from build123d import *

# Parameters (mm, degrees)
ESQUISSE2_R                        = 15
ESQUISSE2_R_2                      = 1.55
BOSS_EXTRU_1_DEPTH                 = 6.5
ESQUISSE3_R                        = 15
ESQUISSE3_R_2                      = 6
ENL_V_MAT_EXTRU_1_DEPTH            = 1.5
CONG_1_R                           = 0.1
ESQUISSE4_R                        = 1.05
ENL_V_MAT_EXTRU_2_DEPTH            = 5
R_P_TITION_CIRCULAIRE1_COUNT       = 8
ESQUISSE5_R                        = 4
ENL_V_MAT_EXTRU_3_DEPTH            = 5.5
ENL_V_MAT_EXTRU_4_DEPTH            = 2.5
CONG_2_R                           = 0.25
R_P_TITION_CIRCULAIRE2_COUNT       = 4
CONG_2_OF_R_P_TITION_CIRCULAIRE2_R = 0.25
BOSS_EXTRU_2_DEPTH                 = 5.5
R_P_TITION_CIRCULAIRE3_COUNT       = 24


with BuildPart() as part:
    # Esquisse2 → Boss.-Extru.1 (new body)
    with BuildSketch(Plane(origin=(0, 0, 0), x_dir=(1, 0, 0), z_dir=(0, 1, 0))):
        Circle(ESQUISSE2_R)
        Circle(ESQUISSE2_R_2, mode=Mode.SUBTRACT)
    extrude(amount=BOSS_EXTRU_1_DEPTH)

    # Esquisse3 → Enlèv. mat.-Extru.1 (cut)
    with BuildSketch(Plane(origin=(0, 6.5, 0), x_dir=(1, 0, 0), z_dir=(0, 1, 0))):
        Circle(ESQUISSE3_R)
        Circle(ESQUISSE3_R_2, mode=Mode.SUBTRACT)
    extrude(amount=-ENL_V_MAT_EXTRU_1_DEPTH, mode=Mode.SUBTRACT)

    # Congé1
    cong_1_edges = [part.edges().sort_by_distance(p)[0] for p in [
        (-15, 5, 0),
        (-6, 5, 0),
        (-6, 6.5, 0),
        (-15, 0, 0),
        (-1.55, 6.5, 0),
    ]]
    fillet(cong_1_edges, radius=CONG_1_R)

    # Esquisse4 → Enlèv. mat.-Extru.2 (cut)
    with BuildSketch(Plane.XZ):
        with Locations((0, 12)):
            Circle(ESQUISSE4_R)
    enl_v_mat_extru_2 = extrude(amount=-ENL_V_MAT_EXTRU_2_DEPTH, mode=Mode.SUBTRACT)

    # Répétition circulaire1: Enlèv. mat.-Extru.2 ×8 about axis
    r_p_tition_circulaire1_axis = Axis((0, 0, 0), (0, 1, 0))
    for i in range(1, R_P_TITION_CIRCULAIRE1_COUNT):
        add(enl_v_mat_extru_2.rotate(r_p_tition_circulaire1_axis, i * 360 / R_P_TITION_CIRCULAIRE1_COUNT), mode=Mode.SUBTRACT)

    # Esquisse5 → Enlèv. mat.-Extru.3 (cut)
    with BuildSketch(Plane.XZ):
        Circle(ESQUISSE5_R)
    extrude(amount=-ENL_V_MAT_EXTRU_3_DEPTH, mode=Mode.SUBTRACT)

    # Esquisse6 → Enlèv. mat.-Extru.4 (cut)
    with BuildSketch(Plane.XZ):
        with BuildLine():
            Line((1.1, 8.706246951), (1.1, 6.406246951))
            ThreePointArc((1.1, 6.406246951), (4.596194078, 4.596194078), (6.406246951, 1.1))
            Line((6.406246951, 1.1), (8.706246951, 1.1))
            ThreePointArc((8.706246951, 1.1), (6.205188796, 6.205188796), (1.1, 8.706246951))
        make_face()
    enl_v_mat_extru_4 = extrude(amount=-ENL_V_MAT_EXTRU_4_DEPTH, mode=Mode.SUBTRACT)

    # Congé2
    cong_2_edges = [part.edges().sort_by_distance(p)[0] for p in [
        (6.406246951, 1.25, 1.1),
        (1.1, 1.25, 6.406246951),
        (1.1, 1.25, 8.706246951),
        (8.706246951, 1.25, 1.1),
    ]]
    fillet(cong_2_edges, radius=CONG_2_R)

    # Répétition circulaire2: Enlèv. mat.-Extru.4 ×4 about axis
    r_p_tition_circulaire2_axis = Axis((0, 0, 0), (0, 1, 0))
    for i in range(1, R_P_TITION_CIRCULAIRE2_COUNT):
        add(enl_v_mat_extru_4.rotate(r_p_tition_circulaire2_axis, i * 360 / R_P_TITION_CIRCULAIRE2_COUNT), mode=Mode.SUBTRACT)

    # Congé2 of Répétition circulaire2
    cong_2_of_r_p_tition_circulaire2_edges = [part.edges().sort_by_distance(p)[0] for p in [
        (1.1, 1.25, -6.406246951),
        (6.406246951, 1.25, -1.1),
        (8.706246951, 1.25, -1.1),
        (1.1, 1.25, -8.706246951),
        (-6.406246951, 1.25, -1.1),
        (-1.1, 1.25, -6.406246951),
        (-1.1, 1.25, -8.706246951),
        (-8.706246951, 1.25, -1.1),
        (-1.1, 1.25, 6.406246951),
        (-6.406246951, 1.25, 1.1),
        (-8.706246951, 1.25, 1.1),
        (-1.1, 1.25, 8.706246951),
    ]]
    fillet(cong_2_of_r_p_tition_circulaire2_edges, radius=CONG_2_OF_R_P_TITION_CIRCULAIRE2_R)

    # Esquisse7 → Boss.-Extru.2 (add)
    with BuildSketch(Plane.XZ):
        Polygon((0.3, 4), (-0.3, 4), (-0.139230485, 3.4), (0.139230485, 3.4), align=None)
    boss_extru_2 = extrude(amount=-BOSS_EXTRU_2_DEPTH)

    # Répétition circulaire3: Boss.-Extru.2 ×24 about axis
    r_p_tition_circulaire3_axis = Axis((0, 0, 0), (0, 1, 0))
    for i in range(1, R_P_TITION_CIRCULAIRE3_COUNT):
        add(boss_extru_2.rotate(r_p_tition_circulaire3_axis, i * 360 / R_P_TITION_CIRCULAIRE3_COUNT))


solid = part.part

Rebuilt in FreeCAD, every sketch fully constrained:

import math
import FreeCAD as App
import Part
import Sketcher
from FreeCAD import Vector
Q = App.Units.Quantity


def edges_at(feature, points):
    """Names of the edges that pass closest to the given points."""
    edges = feature.Shape.Edges
    near = lambda p: min(range(len(edges)), key=lambda i: edges[i].distToShape(Part.Vertex(*p))[0])
    return sorted({f"Edge{near(p) + 1}" for p in points})


def add_polygon(sketch, points):
    """Adds a closed chain of lines whose ends are joined by coincident constraints."""
    first, n = sketch.GeometryCount, len(points)
    for a, b in zip(points, points[1:] + points[:1]):
        sketch.addGeometry(Part.LineSegment(App.Vector(*a, 0), App.Vector(*b, 0)), False)
    for i in range(n):
        sketch.addConstraint(Sketcher.Constraint("Coincident", first + i, 2, first + (i + 1) % n, 1))

doc = App.newDocument("Part")
params = doc.addObject("Spreadsheet::Sheet", "Params")
for row, (alias, value) in enumerate([
    ("sketch1_diameter", "30 mm"),
    ("sketch1_diameter2", "3.1 mm"),
    ("pad1_length", "6.5 mm"),
    ("sketch2_diameter", "30 mm"),
    ("sketch2_diameter2", "12 mm"),
    ("pocket1_length", "1.5 mm"),
    ("fillet_radius", "0.1 mm"),
    ("sketch3_diameter", "2.1 mm"),
    ("pocket2_length", "5 mm"),
    ("sketch4_diameter", "8 mm"),
    ("pocket3_length", "5.5 mm"),
    ("sketch5_radius", "6.5 mm"),
    ("sketch5_width", "2.3 mm"),
    ("pocket4_length", "2.5 mm"),
    ("fillet2_radius", "0.25 mm"),
    ("fillet3_radius", "0.25 mm"),
    ("sketch6_width", "0.6 mm"),
    ("pad2_length", "5.5 mm"),
], start=1):
    params.set(f"A{row}", alias)
    params.set(f"B{row}", "=" + value)
    params.setAlias(f"B{row}", alias)

body = doc.addObject("PartDesign::Body", "Body")

sketch1 = body.newObject("Sketcher::SketchObject", "Sketch")
sketch1.AttachmentSupport = (doc.getObject("XZ_Plane"), [""])
sketch1.MapMode = "FlatFace"
sketch1.addGeometry([
    Part.Circle(Vector(0, 0, 0), Vector(0, 0, 1), 15),
    Part.Circle(Vector(0, 0, 0), Vector(0, 0, 1), 1.55),
], False)
sketch1.addConstraint([
    Sketcher.Constraint("Coincident", 0, 3, -1, 1),
    Sketcher.Constraint("Coincident", 1, 3, -1, 1),
    Sketcher.Constraint("Diameter", 0, 30.0),
    Sketcher.Constraint("Diameter", 1, 3.1),
])
sketch1.setExpression("Constraints[2]", "Params.sketch1_diameter")
sketch1.setExpression("Constraints[3]", "Params.sketch1_diameter2")
pad1 = body.newObject("PartDesign::Pad", "Pad")
pad1.Profile = sketch1
pad1.setExpression("Length", "Params.pad1_length")
pad1.Reversed = True

sketch2 = body.newObject("Sketcher::SketchObject", "Sketch001")
sketch2.AttachmentSupport = (doc.getObject("XZ_Plane"), [""])
sketch2.MapMode = "FlatFace"
sketch2.AttachmentOffset = App.Placement(Vector(0, 0, -6.5), App.Rotation())
sketch2.addGeometry([
    Part.Circle(Vector(0, 0, 0), Vector(0, 0, 1), 15),
    Part.Circle(Vector(0, 0, 0), Vector(0, 0, 1), 6),
], False)
sketch2.addConstraint([
    Sketcher.Constraint("Coincident", 0, 3, -1, 1),
    Sketcher.Constraint("Coincident", 1, 3, -1, 1),
    Sketcher.Constraint("Diameter", 0, 30.0),
    Sketcher.Constraint("Diameter", 1, 12.0),
])
sketch2.setExpression("Constraints[2]", "Params.sketch2_diameter")
sketch2.setExpression("Constraints[3]", "Params.sketch2_diameter2")
pocket1 = body.newObject("PartDesign::Pocket", "Pocket")
pocket1.Profile = sketch2
pocket1.setExpression("Length", "Params.pocket1_length")
pocket1.Reversed = True
doc.recompute()

fillet = body.newObject("PartDesign::Fillet", "Fillet")
fillet.Base = (pocket1, edges_at(pocket1, [
    (-15, 5, 0),
    (-6, 5, 0),
    (-6, 6.5, 0),
    (-15, 0, 0),
    (-1.55, 6.5, 0),
]))
fillet.setExpression("Radius", "Params.fillet_radius")

sketch3 = body.newObject("Sketcher::SketchObject", "Sketch002")
sketch3.AttachmentSupport = (doc.getObject("XZ_Plane"), [""])
sketch3.MapMode = "FlatFace"
sketch3.addGeometry(Part.Circle(Vector(0, 12, 0), Vector(0, 0, 1), 1.05), False)
sketch3.addConstraint([
    Sketcher.Constraint("PointOnObject", 0, 3, -2),
    Sketcher.Constraint("Diameter", 0, 2.1),
    Sketcher.Constraint("DistanceY", -1, 1, 0, 3, 12.0),
])
sketch3.setExpression("Constraints[1]", "Params.sketch3_diameter")
pocket2 = body.newObject("PartDesign::Pocket", "Pocket001")
pocket2.Profile = sketch3
pocket2.setExpression("Length", "Params.pocket2_length")
doc.recompute()

polarpattern = body.newObject("PartDesign::PolarPattern", "PolarPattern")
polarpattern.Originals = [pocket2]
polarpattern.Axis = (doc.getObject("Y_Axis"), [""])
polarpattern.Angle = 360
polarpattern.Occurrences = 8
body.Tip = polarpattern

sketch4 = body.newObject("Sketcher::SketchObject", "Sketch003")
sketch4.AttachmentSupport = (doc.getObject("XZ_Plane"), [""])
sketch4.MapMode = "FlatFace"
sketch4.addGeometry(Part.Circle(Vector(0, 0, 0), Vector(0, 0, 1), 4), False)
sketch4.addConstraint([
    Sketcher.Constraint("Coincident", 0, 3, -1, 1),
    Sketcher.Constraint("Diameter", 0, 8.0),
])
sketch4.setExpression("Constraints[1]", "Params.sketch4_diameter")
pocket3 = body.newObject("PartDesign::Pocket", "Pocket002")
pocket3.Profile = sketch4
pocket3.setExpression("Length", "Params.pocket3_length")

sketch5 = body.newObject("Sketcher::SketchObject", "Sketch004")
sketch5.AttachmentSupport = (doc.getObject("XZ_Plane"), [""])
sketch5.MapMode = "FlatFace"
sketch5.addGeometry([
    Part.LineSegment(Vector(1.1, 8.706247, 0), Vector(1.1, 6.406247, 0)),
    Part.ArcOfCircle(Part.Circle(Vector(0, 0, 0), Vector(0, 0, 1), 6.5), math.radians(9.743097), math.radians(80.256903)),
    Part.LineSegment(Vector(6.406247, 1.1, 0), Vector(8.706247, 1.1, 0)),
    Part.ArcOfCircle(Part.Circle(Vector(0, 0, 0), Vector(0, 0, 1), 8.775462), math.radians(7.200941), math.radians(82.799059)),
], False)
sketch5.addConstraint([
    Sketcher.Constraint("Coincident", 0, 2, 1, 2),
    Sketcher.Constraint("Coincident", 1, 1, 2, 1),
    Sketcher.Constraint("Coincident", 2, 2, 3, 1),
    Sketcher.Constraint("Coincident", 3, 2, 0, 1),
    Sketcher.Constraint("Vertical", 0),
    Sketcher.Constraint("Horizontal", 2),
    Sketcher.Constraint("Coincident", 1, 3, -1, 1),
    Sketcher.Constraint("Coincident", 3, 3, -1, 1),
    Sketcher.Constraint("Equal", 2, 0),
    Sketcher.Constraint("Radius", 1, 6.5),
    Sketcher.Constraint("DistanceX", 2, 1, 2, 2, 2.3),
    Sketcher.Constraint("DistanceX", -1, 1, 0, 2, 1.1),
])
sketch5.setExpression("Constraints[9]", "Params.sketch5_radius")
sketch5.setExpression("Constraints[10]", "Params.sketch5_width")
pocket4 = body.newObject("PartDesign::Pocket", "Pocket003")
pocket4.Profile = sketch5
pocket4.setExpression("Length", "Params.pocket4_length")
doc.recompute()

fillet2 = body.newObject("PartDesign::Fillet", "Fillet001")
fillet2.Base = (pocket4, edges_at(pocket4, [
    (6.406, 1.25, 1.1),
    (1.1, 1.25, 6.406),
    (1.1, 1.25, 8.706),
    (8.706, 1.25, 1.1),
]))
fillet2.setExpression("Radius", "Params.fillet2_radius")
doc.recompute()

polarpattern2 = body.newObject("PartDesign::PolarPattern", "PolarPattern001")
polarpattern2.Originals = [pocket4]
polarpattern2.Axis = (doc.getObject("Y_Axis"), [""])
polarpattern2.Angle = 360
polarpattern2.Occurrences = 4
body.Tip = polarpattern2
doc.recompute()

fillet3 = body.newObject("PartDesign::Fillet", "Fillet002")
fillet3.Base = (polarpattern2, edges_at(polarpattern2, [
    (1.1, 1.25, -6.406),
    (6.406, 1.25, -1.1),
    (8.706, 1.25, -1.1),
    (1.1, 1.25, -8.706),
    (-6.406, 1.25, -1.1),
    (-1.1, 1.25, -6.406),
    (-1.1, 1.25, -8.706),
    (-8.706, 1.25, -1.1),
    (-1.1, 1.25, 6.406),
    (-6.406, 1.25, 1.1),
    (-8.706, 1.25, 1.1),
    (-1.1, 1.25, 8.706),
]))
fillet3.setExpression("Radius", "Params.fillet3_radius")

sketch6 = body.newObject("Sketcher::SketchObject", "Sketch005")
sketch6.AttachmentSupport = (doc.getObject("XZ_Plane"), [""])
sketch6.MapMode = "FlatFace"
add_polygon(sketch6, [(0.3, 4), (-0.3, 4), (-0.13923, 3.4), (0.13923, 3.4)])
sketch6.addConstraint([
    Sketcher.Constraint("Horizontal", 0),
    Sketcher.Constraint("Horizontal", 2),
    Sketcher.Constraint("Equal", 1, 3),
    Sketcher.Constraint("Angle", 1, Q("-75 deg")),
    Sketcher.Constraint("DistanceX", 0, 2, 0, 1, 0.6),
    Sketcher.Constraint("DistanceY", -1, 1, 0, 2, 4.0),
    Sketcher.Constraint("DistanceX", 0, 2, -1, 1, 0.3),
    Sketcher.Constraint("DistanceY", -1, 1, 1, 2, 3.4),
])
sketch6.setExpression("Constraints[8]", "Params.sketch6_width")
pad2 = body.newObject("PartDesign::Pad", "Pad001")
pad2.Profile = sketch6
pad2.setExpression("Length", "Params.pad2_length")
pad2.Reversed = True
doc.recompute()

polarpattern3 = body.newObject("PartDesign::PolarPattern", "PolarPattern002")
polarpattern3.Originals = [pad2]
polarpattern3.Axis = (doc.getObject("Y_Axis"), [""])
polarpattern3.Angle = 360
polarpattern3.Occurrences = 24
body.Tip = polarpattern3

doc.recompute()
